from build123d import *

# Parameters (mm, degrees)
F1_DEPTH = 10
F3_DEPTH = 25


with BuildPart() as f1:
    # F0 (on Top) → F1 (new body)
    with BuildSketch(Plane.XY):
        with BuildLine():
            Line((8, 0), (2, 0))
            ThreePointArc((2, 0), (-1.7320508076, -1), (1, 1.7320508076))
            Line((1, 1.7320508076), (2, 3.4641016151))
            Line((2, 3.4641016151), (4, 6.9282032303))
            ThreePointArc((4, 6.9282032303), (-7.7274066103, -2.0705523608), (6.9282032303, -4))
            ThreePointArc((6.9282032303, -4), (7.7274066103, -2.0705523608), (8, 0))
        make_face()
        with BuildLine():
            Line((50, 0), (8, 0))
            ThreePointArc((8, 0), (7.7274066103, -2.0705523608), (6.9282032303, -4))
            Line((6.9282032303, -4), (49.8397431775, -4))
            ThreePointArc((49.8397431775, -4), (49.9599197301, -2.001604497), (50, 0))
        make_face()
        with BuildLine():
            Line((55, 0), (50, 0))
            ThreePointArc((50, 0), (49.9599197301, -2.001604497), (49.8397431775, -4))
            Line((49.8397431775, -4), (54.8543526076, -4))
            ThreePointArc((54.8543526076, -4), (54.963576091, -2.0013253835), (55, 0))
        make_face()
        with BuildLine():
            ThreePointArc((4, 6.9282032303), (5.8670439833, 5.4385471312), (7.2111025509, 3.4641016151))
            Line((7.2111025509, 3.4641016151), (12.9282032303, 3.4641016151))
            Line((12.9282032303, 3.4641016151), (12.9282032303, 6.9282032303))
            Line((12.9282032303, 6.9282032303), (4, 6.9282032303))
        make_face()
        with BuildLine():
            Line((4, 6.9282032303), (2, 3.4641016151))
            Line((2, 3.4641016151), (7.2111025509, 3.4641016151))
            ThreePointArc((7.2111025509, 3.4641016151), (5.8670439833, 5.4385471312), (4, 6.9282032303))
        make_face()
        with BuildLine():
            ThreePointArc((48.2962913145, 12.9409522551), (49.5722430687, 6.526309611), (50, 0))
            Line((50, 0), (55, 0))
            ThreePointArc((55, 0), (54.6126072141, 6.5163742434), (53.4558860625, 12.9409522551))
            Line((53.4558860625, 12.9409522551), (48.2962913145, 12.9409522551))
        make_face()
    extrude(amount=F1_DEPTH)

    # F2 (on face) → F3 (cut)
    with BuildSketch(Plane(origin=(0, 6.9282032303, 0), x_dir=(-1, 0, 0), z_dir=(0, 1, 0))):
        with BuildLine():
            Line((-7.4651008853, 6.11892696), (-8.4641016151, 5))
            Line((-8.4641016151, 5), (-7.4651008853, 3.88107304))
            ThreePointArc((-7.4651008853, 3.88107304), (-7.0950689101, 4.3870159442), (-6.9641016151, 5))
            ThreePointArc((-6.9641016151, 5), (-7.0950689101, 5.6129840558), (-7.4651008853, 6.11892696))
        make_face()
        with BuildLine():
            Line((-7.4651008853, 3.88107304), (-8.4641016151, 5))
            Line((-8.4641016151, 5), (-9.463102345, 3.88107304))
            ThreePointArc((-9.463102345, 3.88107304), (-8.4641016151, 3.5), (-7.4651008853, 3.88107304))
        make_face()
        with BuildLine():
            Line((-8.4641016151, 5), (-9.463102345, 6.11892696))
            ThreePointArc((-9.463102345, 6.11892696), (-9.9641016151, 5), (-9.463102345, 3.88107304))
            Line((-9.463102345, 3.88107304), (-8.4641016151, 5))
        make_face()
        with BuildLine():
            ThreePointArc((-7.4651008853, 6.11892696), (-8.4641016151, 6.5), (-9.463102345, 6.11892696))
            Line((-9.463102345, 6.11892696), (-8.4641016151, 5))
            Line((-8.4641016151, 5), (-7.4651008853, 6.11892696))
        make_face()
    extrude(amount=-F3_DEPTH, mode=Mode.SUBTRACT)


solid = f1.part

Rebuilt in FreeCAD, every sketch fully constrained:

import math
import FreeCAD as App
import Part
import Sketcher
from FreeCAD import Vector
Q = App.Units.Quantity

doc = App.newDocument("Part")
params = doc.addObject("Spreadsheet::Sheet", "Params")
for row, (alias, value) in enumerate([
    ("sketch1_radius", "2 mm"),
    ("sketch1_radius2", "8 mm"),
    ("sketch1_radius3", "55 mm"),
    ("sketch1_radius4", "50 mm"),
    ("sketch1_length", "2 mm"),
    ("pad1_length", "10 mm"),
    ("sketch2_radius", "1.5 mm"),
    ("pocket1_length", "25 mm"),
], start=1):
    params.set(f"A{row}", alias)
    params.set(f"B{row}", "=" + value)
    params.setAlias(f"B{row}", alias)

body = doc.addObject("PartDesign::Body", "Body")

# Sketch on XY plane
sketch1 = body.newObject("Sketcher::SketchObject", "Sketch")
sketch1.AttachmentSupport = (doc.getObject("XY_Plane"), [""])
sketch1.MapMode = "FlatFace"
sketch1.addGeometry([
    Part.ArcOfCircle(Part.Circle(Vector(0, 0, 0), Vector(0, 0, 1), 2), math.radians(60), math.radians(360)),  # 0
    Part.LineSegment(Vector(1, 1.7, 0), Vector(2, 3.5, 0)),  # 1
    Part.LineSegment(Vector(2, 3.5, 0), Vector(12.9, 3.5, 0)),  # 2
    Part.LineSegment(Vector(12.9, 3.5, 0), Vector(12.9, 6.9, 0)),  # 3
    Part.LineSegment(Vector(12.9, 6.9, 0), Vector(4, 6.9, 0)),  # 4
    Part.ArcOfCircle(Part.Circle(Vector(0, 0, 0), Vector(0, 0, 1), 8), math.radians(60), math.radians(330)),  # 5
    Part.LineSegment(Vector(6.9, -4, 0), Vector(54.9, -4, 0)),  # 6
    Part.ArcOfCircle(Part.Circle(Vector(0, 0, 0), Vector(0, 0, 1), 55), math.radians(-4.17), math.radians(0)),  # 7
    Part.ArcOfCircle(Part.Circle(Vector(0, 0, 0), Vector(0, 0, 1), 55), math.radians(0), math.radians(13.61)),  # 8
    Part.LineSegment(Vector(53.5, 12.9, 0), Vector(48.3, 12.9, 0)),  # 9
    Part.ArcOfCircle(Part.Circle(Vector(0, 0, 0), Vector(0, 0, 1), 50), math.radians(0), math.radians(15)),  # 10
    Part.LineSegment(Vector(50, 0, 0), Vector(2, 0, 0)),  # 11
], False)
sketch1.addConstraint([
    Sketcher.Constraint("Coincident", 0, 1, 1, 1),
    Sketcher.Constraint("Coincident", 1, 2, 2, 1),
    Sketcher.Constraint("Coincident", 2, 2, 3, 1),
    Sketcher.Constraint("Coincident", 3, 2, 4, 1),
    Sketcher.Constraint("Coincident", 4, 2, 5, 1),
    Sketcher.Constraint("Coincident", 5, 2, 6, 1),
    Sketcher.Constraint("Coincident", 6, 2, 7, 1),
    Sketcher.Constraint("Tangent", 7, 2, 8, 1),
    Sketcher.Constraint("Coincident", 8, 2, 9, 1),
    Sketcher.Constraint("Coincident", 9, 2, 10, 2),
    Sketcher.Constraint("Coincident", 10, 1, 11, 1),
    Sketcher.Constraint("Coincident", 11, 2, 0, 2),
    Sketcher.Constraint("Horizontal", 2),
    Sketcher.Constraint("Vertical", 3),
    Sketcher.Constraint("Horizontal", 4),
    Sketcher.Constraint("Horizontal", 6),
    Sketcher.Constraint("Horizontal", 9),
    Sketcher.Constraint("Horizontal", 11),
    Sketcher.Constraint("Coincident", 0, 3, -1, 1),
    Sketcher.Constraint("Coincident", 5, 3, -1, 1),
    Sketcher.Constraint("Coincident", 7, 3, -1, 1),
    Sketcher.Constraint("Coincident", 10, 3, -1, 1),
    Sketcher.Constraint("Equal", 7, 8),
    Sketcher.Constraint("PointOnObject", 7, 2, -1),
    Sketcher.Constraint("PointOnObject", 10, 1, -1),
    Sketcher.Constraint("Vertical", 1, 2, 11, 2),
    Sketcher.Constraint("Radius", 0, 2.0),
    Sketcher.Constraint("Radius", 5, 8.0),
    Sketcher.Constraint("Radius", 7, 55.0),
    Sketcher.Constraint("Radius", 10, 50.0),
    Sketcher.Constraint("Angle", 1, Q("60 deg")),
    Sketcher.Constraint("Distance", 1, 2.0),
    Sketcher.Constraint("DistanceX", -1, 1, 4, 2, 4.0),
    Sketcher.Constraint("DistanceY", 5, 2, -1, 1, 4.0),
    Sketcher.Constraint("DistanceX", 2, 1, 2, 2, 10.928203),
    Sketcher.Constraint("DistanceX", 9, 2, 9, 1, 5.159595),
])
sketch1.setExpression("Constraints[26]", "Params.sketch1_radius")
sketch1.setExpression("Constraints[27]", "Params.sketch1_radius2")
sketch1.setExpression("Constraints[28]", "Params.sketch1_radius3")
sketch1.setExpression("Constraints[29]", "Params.sketch1_radius4")
sketch1.setExpression("Constraints[31]", "Params.sketch1_length")
pad1 = body.newObject("PartDesign::Pad", "Pad")
pad1.Profile = sketch1
pad1.setExpression("Length", "Params.pad1_length")

# Sketch on XZ plane
sketch2 = body.newObject("Sketcher::SketchObject", "Sketch001")
sketch2.AttachmentSupport = (doc.getObject("XZ_Plane"), [""])
sketch2.MapMode = "FlatFace"
sketch2.AttachmentOffset = App.Placement(Vector(0, 0, -6.928203), App.Rotation())
sketch2.addGeometry([
    Part.ArcOfCircle(Part.Circle(Vector(8.5, 5, 0), Vector(0, 0, 1), 1.5), math.radians(-48), math.radians(48)),  # 0
    Part.ArcOfCircle(Part.Circle(Vector(8.5, 5, 0), Vector(0, 0, 1), 1.5), math.radians(-132), math.radians(-48)),  # 1
    Part.ArcOfCircle(Part.Circle(Vector(8.5, 5, 0), Vector(0, 0, 1), 1.5), math.radians(180), math.radians(228)),  # 2
    Part.ArcOfCircle(Part.Circle(Vector(8.5, 5, 0), Vector(0, 0, 1), 1.5), math.radians(132), math.radians(180)),  # 3
    Part.ArcOfCircle(Part.Circle(Vector(8.5, 5, 0), Vector(0, 0, 1), 1.5), math.radians(48), math.radians(132)),  # 4
], False)
sketch2.addConstraint([
    Sketcher.Constraint("Tangent", 0, 1, 1, 2),
    Sketcher.Constraint("Tangent", 1, 1, 2, 2),
    Sketcher.Constraint("Tangent", 2, 1, 3, 2),
    Sketcher.Constraint("Tangent", 3, 1, 4, 2),
    Sketcher.Constraint("Tangent", 4, 1, 0, 2),
    Sketcher.Constraint("Coincident", 2, 3, 0, 3),
    Sketcher.Constraint("Horizontal", 0, 1, 1, 1),
    Sketcher.Constraint("Horizontal", 4, 3, 2, 1),
    Sketcher.Constraint("Horizontal", 3, 1, 4, 1),
    Sketcher.Constraint("Vertical", 1, 1, 3, 1),
    Sketcher.Constraint("Radius", 0, 1.5),
    Sketcher.Constraint("DistanceY", -1, 1, 0, 3, 5.0),
    Sketcher.Constraint("DistanceX", 0, 3, 0, 1, 0.999001),
    Sketcher.Constraint("DistanceX", -1, 1, 0, 3, 8.464102),
])
sketch2.setExpression("Constraints[10]", "Params.sketch2_radius")
pocket1 = body.newObject("PartDesign::Pocket", "Pocket")
pocket1.Profile = sketch2
pocket1.setExpression("Length", "Params.pocket1_length")
pocket1.Reversed = True

doc.recompute()
